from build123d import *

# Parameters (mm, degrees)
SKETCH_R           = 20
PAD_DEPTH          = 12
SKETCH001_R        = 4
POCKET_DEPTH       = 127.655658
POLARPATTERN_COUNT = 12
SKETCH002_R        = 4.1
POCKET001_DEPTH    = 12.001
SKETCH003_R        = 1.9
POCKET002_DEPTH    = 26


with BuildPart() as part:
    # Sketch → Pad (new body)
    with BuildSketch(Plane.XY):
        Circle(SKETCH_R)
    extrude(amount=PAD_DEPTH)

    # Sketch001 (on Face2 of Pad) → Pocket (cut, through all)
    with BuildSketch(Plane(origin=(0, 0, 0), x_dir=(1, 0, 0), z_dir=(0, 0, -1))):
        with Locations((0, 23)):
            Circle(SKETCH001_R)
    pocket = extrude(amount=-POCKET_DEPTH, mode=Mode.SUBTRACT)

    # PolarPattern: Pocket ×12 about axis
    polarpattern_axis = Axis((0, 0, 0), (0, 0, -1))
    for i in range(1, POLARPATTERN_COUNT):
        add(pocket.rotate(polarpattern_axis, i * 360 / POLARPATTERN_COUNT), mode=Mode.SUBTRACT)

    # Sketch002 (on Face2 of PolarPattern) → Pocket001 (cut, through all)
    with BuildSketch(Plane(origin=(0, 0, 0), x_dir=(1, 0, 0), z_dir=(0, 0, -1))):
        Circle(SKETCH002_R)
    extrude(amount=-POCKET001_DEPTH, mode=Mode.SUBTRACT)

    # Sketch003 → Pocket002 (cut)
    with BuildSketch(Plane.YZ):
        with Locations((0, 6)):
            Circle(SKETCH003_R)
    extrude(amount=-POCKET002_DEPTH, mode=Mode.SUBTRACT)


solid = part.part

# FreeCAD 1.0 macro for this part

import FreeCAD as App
import Part
import Sketcher
from FreeCAD import Vector

doc = App.newDocument("Part")
body = doc.addObject("PartDesign::Body", "Body")

# Sketch on XY plane
sketch1 = body.newObject("Sketcher::SketchObject", "Sketch")
sketch1.AttachmentSupport = (doc.getObject("XY_Plane"), [""])
sketch1.MapMode = "FlatFace"
sketch1.addGeometry(Part.Circle(Vector(0, 0, 0), Vector(0, 0, 1), 20), False)
sketch1.addConstraint(Sketcher.Constraint("Coincident", 0, 3, -1, 1))
sketch1.addConstraint(Sketcher.Constraint("Diameter", 0, 40.0))
pad1 = body.newObject("PartDesign::Pad", "Pad")
pad1.Profile = sketch1
pad1.Length = 12

# Sketch on XY plane
sketch2 = body.newObject("Sketcher::SketchObject", "Sketch001")
sketch2.AttachmentSupport = (doc.getObject("XY_Plane"), [""])
sketch2.MapMode = "FlatFace"
sketch2.addGeometry(Part.Circle(Vector(0, -23, 0), Vector(0, 0, 1), 4), False)
sketch2.addConstraint(Sketcher.Constraint("PointOnObject", 0, 3, -2))
sketch2.addConstraint(Sketcher.Constraint("Diameter", 0, 8.0))
sketch2.addConstraint(Sketcher.Constraint("DistanceY", 0, 3, -1, 1, 23.0))
pocket1 = body.newObject("PartDesign::Pocket", "Pocket")
pocket1.Profile = sketch2
pocket1.Type = "ThroughAll"
pocket1.Reversed = True
doc.recompute()

polarpattern = body.newObject("PartDesign::PolarPattern", "PolarPattern")
polarpattern.Originals = [pocket1]
polarpattern.Axis = (doc.getObject("Z_Axis"), [""])
polarpattern.Angle = 360
polarpattern.Occurrences = 12
body.Tip = polarpattern

# Sketch on XY plane
sketch3 = body.newObject("Sketcher::SketchObject", "Sketch002")
sketch3.AttachmentSupport = (doc.getObject("XY_Plane"), [""])
sketch3.MapMode = "FlatFace"
sketch3.addGeometry(Part.Circle(Vector(0, 0, 0), Vector(0, 0, 1), 4.1), False)
sketch3.addConstraint(Sketcher.Constraint("Coincident", 0, 3, -1, 1))
sketch3.addConstraint(Sketcher.Constraint("Diameter", 0, 8.2))
pocket2 = body.newObject("PartDesign::Pocket", "Pocket001")
pocket2.Profile = sketch3
pocket2.Type = "ThroughAll"
pocket2.Reversed = True

# Sketch on YZ plane
sketch4 = body.newObject("Sketcher::SketchObject", "Sketch003")
sketch4.AttachmentSupport = (doc.getObject("YZ_Plane"), [""])
sketch4.MapMode = "FlatFace"
sketch4.addGeometry(Part.Circle(Vector(0, 6, 0), Vector(0, 0, 1), 1.9), False)
sketch4.addConstraint(Sketcher.Constraint("PointOnObject", 0, 3, -2))
sketch4.addConstraint(Sketcher.Constraint("Diameter", 0, 3.8))
sketch4.addConstraint(Sketcher.Constraint("DistanceY", -1, 1, 0, 3, 6.0))
pocket3 = body.newObject("PartDesign::Pocket", "Pocket002")
pocket3.Profile = sketch4
pocket3.Length = 26

doc.recompute()
